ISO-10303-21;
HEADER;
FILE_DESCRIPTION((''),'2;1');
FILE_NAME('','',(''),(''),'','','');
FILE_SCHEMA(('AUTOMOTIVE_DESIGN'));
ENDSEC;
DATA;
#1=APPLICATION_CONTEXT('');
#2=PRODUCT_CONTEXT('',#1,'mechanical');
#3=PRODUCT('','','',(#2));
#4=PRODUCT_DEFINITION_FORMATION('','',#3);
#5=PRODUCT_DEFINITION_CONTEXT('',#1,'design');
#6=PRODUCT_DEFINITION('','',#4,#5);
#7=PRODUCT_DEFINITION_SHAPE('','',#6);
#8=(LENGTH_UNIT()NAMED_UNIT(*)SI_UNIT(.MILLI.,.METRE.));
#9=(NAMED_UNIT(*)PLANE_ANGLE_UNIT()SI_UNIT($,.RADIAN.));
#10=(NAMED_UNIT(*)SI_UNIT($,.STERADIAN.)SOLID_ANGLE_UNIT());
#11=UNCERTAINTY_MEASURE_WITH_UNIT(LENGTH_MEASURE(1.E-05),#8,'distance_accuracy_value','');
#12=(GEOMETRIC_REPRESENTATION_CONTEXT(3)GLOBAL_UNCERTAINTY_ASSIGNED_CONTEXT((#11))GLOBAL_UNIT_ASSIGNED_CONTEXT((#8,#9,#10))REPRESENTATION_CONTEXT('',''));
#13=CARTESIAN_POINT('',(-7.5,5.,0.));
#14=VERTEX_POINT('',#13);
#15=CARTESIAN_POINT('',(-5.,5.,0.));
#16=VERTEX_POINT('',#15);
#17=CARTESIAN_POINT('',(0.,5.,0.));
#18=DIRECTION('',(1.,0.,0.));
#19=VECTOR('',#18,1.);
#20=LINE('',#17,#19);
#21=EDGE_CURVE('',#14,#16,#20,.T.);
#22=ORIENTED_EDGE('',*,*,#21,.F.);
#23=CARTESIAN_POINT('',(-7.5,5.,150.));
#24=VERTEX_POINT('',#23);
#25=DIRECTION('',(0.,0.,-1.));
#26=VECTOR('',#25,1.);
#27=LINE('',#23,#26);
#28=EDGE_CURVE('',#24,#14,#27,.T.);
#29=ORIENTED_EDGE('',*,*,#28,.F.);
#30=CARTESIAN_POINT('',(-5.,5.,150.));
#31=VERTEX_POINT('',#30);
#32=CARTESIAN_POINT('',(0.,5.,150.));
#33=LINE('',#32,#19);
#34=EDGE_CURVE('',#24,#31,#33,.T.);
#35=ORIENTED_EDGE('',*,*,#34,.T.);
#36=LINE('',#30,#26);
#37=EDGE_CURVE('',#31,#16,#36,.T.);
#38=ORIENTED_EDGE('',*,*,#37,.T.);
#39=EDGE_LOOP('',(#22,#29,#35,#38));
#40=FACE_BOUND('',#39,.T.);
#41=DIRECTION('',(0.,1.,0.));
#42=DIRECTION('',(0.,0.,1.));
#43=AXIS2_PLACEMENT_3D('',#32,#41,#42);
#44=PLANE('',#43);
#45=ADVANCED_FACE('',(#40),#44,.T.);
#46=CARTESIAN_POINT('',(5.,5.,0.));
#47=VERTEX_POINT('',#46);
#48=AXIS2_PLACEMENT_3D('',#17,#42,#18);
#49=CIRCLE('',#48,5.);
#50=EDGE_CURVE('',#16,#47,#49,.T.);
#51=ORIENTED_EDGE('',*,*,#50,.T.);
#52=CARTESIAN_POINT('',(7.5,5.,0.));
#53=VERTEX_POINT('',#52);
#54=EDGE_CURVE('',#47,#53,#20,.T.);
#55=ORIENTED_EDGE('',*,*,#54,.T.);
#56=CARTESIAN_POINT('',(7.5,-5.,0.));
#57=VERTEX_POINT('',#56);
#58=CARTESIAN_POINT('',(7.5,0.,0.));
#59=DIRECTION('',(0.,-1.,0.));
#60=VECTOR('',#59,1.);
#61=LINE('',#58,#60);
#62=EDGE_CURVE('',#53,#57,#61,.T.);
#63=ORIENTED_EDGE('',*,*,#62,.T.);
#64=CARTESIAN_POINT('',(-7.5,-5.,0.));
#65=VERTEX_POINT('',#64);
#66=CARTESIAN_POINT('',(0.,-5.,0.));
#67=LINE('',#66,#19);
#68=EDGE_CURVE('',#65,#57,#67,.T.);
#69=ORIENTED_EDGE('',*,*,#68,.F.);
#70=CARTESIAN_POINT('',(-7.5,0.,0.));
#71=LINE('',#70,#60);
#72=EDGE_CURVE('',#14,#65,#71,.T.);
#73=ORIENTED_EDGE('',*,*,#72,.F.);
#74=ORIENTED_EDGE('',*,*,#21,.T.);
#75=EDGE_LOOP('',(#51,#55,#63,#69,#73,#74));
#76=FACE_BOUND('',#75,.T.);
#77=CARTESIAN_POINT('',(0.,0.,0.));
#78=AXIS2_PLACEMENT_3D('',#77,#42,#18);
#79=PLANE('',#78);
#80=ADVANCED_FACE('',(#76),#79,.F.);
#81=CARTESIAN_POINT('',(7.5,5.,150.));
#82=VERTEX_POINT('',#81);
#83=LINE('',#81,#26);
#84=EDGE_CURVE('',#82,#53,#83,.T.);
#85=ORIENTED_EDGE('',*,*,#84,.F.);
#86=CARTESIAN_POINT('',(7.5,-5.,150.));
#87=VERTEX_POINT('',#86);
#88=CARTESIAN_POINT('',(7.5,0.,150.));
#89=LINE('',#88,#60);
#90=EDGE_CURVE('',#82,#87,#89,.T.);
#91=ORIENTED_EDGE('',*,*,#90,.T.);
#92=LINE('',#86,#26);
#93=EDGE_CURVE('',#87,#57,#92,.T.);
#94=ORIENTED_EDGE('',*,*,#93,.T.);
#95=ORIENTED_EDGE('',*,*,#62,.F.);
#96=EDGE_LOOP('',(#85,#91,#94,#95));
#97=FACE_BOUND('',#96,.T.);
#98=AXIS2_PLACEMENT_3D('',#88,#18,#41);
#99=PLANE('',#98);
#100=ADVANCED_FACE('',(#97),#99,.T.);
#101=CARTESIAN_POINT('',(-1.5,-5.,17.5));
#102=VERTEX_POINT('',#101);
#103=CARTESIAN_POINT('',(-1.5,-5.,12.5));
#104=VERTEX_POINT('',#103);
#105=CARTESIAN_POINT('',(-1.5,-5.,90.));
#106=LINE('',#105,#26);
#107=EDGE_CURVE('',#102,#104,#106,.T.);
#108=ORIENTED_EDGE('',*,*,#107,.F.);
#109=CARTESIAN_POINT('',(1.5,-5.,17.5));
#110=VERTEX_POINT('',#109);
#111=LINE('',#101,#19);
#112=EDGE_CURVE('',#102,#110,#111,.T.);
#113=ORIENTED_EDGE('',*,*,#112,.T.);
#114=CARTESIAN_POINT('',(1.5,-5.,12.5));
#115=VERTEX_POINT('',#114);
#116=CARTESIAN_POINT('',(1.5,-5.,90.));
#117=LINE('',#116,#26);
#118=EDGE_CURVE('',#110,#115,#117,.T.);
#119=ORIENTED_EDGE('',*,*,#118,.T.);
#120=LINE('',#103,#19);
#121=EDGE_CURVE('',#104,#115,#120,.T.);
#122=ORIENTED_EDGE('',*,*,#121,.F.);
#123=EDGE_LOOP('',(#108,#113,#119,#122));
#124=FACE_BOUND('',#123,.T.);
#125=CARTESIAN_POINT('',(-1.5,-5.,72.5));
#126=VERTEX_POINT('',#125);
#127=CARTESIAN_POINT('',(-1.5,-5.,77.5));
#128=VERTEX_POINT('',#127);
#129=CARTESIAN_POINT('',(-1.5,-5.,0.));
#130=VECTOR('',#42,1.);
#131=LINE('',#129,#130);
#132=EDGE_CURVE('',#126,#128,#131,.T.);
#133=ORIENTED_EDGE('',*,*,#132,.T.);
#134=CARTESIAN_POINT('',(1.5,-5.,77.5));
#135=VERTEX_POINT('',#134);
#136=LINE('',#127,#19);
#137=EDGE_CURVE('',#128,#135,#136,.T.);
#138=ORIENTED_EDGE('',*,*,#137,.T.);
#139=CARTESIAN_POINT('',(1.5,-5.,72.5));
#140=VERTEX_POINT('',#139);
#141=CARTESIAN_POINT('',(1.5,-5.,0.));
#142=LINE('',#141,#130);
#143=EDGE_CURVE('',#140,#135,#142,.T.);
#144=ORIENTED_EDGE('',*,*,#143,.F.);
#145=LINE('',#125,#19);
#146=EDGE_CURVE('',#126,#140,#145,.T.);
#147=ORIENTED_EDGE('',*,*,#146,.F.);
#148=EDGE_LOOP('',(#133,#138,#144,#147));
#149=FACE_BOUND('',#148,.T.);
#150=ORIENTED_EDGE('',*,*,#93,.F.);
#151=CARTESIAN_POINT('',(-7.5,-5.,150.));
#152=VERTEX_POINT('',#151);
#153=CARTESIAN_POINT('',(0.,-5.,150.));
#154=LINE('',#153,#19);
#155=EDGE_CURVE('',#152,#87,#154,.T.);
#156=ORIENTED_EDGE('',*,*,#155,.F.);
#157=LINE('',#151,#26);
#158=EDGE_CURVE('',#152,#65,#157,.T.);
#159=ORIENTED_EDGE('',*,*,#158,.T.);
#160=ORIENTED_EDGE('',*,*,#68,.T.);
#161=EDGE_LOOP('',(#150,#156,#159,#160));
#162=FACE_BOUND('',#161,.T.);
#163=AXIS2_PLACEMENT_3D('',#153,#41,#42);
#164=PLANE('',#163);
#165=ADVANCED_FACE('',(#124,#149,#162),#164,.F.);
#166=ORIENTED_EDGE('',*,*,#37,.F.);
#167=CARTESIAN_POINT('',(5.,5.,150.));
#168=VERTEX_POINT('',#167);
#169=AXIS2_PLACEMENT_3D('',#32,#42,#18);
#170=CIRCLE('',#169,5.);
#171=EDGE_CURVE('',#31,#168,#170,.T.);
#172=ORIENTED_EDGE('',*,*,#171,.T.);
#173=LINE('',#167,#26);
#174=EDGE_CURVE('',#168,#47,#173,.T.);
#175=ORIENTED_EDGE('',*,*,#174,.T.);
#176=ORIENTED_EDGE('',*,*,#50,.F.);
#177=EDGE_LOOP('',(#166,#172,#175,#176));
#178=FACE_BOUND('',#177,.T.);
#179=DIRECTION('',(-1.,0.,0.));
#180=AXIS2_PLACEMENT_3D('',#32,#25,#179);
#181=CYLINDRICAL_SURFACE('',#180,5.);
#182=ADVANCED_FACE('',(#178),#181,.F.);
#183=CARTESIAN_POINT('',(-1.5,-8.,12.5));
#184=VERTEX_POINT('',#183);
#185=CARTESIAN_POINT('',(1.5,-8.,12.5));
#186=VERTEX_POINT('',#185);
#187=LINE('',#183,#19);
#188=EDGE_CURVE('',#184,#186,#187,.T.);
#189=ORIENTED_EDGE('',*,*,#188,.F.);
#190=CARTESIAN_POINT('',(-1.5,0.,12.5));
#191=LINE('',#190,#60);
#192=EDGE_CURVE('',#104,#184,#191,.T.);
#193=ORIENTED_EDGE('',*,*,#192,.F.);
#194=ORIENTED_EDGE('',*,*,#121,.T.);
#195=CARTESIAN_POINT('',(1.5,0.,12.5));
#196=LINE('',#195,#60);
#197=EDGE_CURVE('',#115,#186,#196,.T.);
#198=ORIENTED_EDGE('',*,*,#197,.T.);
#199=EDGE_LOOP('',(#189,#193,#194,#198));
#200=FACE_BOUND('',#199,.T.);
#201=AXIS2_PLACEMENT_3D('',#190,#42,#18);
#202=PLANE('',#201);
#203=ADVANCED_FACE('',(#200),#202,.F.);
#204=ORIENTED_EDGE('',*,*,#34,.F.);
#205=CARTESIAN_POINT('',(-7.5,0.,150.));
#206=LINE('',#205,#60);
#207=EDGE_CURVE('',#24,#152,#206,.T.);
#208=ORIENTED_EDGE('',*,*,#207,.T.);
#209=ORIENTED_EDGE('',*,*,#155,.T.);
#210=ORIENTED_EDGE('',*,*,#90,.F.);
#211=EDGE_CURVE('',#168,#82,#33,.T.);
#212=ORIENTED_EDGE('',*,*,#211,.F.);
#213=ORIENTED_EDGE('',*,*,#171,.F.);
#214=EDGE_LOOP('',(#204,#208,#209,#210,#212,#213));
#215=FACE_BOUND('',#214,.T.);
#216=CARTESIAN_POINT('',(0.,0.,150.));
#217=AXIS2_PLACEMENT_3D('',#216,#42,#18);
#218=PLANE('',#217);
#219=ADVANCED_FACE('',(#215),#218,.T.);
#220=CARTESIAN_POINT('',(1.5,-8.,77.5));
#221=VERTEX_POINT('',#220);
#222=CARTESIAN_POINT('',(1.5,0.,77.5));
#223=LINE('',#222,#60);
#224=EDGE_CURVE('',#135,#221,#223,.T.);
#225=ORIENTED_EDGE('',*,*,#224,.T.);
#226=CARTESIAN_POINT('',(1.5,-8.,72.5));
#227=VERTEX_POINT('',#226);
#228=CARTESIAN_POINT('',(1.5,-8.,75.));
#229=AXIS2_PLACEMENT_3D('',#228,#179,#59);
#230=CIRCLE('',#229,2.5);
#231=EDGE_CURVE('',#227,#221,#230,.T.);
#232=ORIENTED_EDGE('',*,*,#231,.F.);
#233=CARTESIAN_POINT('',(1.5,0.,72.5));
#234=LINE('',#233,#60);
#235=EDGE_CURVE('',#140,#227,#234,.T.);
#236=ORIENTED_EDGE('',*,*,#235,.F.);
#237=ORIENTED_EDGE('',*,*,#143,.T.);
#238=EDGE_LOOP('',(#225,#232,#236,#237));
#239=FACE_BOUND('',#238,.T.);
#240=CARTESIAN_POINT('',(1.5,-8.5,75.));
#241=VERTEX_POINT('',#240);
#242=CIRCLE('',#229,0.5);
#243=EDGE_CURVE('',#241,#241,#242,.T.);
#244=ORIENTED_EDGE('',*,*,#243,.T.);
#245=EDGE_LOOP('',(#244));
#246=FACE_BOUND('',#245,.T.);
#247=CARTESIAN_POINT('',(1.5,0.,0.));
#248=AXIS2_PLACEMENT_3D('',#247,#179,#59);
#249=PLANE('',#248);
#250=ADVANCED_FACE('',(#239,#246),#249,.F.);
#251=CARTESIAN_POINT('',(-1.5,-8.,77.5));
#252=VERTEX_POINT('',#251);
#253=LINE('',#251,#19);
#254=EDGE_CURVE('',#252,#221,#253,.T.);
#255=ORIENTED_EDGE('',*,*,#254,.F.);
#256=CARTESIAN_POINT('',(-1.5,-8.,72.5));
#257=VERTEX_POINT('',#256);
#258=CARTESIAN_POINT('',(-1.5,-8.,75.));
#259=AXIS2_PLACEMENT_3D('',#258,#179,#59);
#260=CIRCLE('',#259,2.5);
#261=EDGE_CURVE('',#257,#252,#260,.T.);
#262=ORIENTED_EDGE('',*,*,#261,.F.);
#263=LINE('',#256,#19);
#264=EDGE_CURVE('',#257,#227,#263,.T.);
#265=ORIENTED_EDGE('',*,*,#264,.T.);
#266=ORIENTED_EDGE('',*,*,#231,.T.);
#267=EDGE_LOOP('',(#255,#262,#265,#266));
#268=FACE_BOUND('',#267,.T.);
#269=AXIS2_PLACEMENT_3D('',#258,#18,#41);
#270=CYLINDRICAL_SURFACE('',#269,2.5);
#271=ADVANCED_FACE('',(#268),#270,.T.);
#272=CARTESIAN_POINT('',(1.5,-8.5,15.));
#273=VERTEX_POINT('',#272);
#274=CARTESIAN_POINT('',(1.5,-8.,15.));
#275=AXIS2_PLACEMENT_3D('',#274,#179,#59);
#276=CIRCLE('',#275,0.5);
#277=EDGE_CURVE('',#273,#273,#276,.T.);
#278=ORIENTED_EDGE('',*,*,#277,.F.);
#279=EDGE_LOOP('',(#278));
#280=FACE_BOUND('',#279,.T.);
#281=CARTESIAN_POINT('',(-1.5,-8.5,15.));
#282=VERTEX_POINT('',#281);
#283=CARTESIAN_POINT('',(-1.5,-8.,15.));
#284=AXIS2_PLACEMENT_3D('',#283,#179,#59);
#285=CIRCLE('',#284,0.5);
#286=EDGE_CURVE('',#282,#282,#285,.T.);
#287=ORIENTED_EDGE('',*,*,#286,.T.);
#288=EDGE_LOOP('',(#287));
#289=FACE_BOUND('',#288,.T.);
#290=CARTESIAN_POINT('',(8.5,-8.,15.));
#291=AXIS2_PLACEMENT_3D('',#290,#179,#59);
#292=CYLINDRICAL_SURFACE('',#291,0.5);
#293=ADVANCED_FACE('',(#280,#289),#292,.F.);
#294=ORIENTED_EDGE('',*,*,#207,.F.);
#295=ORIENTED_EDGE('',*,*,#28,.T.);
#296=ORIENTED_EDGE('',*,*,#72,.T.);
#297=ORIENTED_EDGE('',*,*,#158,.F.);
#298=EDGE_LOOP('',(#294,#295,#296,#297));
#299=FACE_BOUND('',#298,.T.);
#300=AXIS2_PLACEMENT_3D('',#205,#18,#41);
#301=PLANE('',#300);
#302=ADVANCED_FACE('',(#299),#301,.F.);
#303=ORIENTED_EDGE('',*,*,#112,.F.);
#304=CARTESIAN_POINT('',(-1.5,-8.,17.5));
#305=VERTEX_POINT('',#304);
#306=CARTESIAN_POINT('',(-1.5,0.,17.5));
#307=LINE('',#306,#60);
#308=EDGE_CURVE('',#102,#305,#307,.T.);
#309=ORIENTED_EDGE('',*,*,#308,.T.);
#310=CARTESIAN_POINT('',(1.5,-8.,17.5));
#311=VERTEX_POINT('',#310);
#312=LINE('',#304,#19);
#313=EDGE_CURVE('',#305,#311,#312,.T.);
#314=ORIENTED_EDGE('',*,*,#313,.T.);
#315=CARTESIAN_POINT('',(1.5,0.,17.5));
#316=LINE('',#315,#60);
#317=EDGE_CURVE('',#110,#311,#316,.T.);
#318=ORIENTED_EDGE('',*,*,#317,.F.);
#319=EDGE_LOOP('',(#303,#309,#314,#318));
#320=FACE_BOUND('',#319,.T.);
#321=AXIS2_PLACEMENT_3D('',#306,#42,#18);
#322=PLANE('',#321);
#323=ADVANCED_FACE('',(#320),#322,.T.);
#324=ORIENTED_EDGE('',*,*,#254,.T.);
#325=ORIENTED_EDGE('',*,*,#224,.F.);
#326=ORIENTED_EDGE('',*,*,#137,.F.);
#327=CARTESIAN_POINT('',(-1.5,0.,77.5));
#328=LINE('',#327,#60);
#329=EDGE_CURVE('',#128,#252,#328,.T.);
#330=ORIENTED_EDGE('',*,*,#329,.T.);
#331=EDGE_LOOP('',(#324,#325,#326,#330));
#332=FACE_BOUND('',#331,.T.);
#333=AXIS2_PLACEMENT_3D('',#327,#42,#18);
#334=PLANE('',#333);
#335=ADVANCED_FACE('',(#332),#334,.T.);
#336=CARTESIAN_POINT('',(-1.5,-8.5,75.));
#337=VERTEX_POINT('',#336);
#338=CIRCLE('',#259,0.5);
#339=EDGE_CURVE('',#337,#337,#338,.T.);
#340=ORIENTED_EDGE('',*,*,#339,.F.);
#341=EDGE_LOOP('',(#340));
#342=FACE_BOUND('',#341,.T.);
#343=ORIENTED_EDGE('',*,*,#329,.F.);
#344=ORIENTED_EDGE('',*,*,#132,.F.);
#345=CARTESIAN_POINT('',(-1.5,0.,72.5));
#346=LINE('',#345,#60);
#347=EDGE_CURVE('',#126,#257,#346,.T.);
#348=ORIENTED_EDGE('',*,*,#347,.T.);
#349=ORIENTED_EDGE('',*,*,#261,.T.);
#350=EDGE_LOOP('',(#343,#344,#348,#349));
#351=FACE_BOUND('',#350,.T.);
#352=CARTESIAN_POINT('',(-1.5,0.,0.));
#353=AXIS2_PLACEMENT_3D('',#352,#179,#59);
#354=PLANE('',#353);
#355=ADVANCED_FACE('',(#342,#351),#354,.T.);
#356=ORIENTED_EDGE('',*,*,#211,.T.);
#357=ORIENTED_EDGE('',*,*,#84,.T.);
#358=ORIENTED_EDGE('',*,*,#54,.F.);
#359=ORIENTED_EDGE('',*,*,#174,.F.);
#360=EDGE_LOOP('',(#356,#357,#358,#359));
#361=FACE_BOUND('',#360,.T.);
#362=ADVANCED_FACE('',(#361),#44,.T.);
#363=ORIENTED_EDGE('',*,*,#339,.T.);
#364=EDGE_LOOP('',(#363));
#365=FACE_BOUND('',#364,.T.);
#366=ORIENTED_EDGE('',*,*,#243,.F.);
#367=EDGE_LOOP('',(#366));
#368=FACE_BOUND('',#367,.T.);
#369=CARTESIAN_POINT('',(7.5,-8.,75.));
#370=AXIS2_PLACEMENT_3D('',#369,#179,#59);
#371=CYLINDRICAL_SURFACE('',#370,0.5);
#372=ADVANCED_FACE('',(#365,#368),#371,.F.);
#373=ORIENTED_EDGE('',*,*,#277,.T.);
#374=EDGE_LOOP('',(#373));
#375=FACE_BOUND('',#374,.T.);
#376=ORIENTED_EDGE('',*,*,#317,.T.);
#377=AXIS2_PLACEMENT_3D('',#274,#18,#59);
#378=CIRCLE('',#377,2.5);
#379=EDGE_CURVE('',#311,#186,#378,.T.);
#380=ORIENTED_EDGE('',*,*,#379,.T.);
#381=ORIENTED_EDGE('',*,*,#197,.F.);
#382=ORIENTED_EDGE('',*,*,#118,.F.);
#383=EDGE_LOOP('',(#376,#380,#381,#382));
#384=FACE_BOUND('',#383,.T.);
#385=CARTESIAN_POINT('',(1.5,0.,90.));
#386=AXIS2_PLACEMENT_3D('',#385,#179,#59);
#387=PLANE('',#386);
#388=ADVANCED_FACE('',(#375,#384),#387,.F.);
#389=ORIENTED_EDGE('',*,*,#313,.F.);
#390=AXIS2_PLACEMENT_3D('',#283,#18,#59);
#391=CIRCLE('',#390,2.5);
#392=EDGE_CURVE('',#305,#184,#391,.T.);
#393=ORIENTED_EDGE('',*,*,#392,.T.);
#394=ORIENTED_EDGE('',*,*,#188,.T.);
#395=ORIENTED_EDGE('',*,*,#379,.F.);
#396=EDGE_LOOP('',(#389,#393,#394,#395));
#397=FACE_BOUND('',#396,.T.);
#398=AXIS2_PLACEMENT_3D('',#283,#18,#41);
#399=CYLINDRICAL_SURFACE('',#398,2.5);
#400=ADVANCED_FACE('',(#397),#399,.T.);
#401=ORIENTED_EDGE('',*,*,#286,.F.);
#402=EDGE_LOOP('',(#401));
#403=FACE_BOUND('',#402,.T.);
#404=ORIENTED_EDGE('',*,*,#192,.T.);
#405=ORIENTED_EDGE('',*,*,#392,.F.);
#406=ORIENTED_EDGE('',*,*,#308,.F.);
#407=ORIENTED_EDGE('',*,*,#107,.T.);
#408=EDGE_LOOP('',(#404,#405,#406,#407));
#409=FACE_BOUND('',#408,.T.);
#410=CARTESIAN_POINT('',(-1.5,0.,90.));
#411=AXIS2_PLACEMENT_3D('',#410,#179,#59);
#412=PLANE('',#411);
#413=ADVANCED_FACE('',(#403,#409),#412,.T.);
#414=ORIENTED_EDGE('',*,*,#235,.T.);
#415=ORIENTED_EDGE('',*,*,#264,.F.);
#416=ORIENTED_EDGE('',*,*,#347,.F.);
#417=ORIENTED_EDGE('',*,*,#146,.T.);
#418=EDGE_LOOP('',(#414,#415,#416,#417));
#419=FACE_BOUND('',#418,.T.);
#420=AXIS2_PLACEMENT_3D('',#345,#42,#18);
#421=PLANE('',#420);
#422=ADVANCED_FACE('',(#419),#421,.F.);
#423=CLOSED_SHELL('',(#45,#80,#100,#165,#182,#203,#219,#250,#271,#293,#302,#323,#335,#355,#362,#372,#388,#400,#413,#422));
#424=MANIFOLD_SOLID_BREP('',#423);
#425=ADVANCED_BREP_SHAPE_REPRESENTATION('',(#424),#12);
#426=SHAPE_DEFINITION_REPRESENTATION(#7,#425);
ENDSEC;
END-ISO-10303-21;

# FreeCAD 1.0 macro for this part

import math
import FreeCAD as App
import Part
import Sketcher

V = App.Vector
Q = App.Units.Quantity

doc = App.newDocument("Part")
body = doc.addObject("PartDesign::Body", "Body")

# Sketch on XY plane
sketch1 = body.newObject("Sketcher::SketchObject", "Sketch")
sketch1.AttachmentSupport = (doc.getObject("XY_Plane"), [""])
sketch1.MapMode = "FlatFace"
sketch1.addGeometry(Part.LineSegment(V(7.5, 5, 0), V(5, 5, 0)), False)
sketch1.addGeometry(Part.ArcOfCircle(Part.Circle(V(0, 5, 0), V(0, 0, 1), 5), math.radians(180), math.radians(360)), False)
sketch1.addGeometry(Part.LineSegment(V(-5, 5, 0), V(-7.5, 5, 0)), False)
sketch1.addGeometry(Part.LineSegment(V(-7.5, 5, 0), V(-7.5, -5, 0)), False)
sketch1.addGeometry(Part.LineSegment(V(-7.5, -5, 0), V(7.5, -5, 0)), False)
sketch1.addGeometry(Part.LineSegment(V(7.5, -5, 0), V(7.5, 5, 0)), False)
sketch1.addConstraint(Sketcher.Constraint("Coincident", 0, 2, 1, 2))
sketch1.addConstraint(Sketcher.Constraint("Coincident", 1, 1, 2, 1))
sketch1.addConstraint(Sketcher.Constraint("Coincident", 2, 2, 3, 1))
sketch1.addConstraint(Sketcher.Constraint("Coincident", 3, 2, 4, 1))
sketch1.addConstraint(Sketcher.Constraint("Coincident", 4, 2, 5, 1))
sketch1.addConstraint(Sketcher.Constraint("Coincident", 5, 2, 0, 1))
sketch1.addConstraint(Sketcher.Constraint("Horizontal", 0))
sketch1.addConstraint(Sketcher.Constraint("Horizontal", 2))
sketch1.addConstraint(Sketcher.Constraint("Vertical", 3))
sketch1.addConstraint(Sketcher.Constraint("Horizontal", 4))
sketch1.addConstraint(Sketcher.Constraint("Vertical", 5))
sketch1.addConstraint(Sketcher.Constraint("Symmetric", 2, 2, 4, 2, -1, 1))
sketch1.addConstraint(Sketcher.Constraint("Symmetric", 0, 2, 1, 1, -2))
sketch1.addConstraint(Sketcher.Constraint("Horizontal", 1, 3, 0, 2))
sketch1.addConstraint(Sketcher.Constraint("Radius", 1, Q("5 mm")))
sketch1.addConstraint(Sketcher.Constraint("DistanceX", 4, 1, 4, 2, Q("15 mm")))
sketch1.addConstraint(Sketcher.Constraint("DistanceY", 3, 2, 3, 1, Q("10 mm")))
pad1 = body.newObject("PartDesign::Pad", "Pad")
pad1.Profile = sketch1
pad1.Length = 150

# Sketch on YZ plane
sketch2 = body.newObject("Sketcher::SketchObject", "Sketch001")
sketch2.AttachmentSupport = (doc.getObject("YZ_Plane"), [""])
sketch2.MapMode = "FlatFace"
sketch2.addGeometry(Part.ArcOfCircle(Part.Circle(V(-8, 75, 0), V(0, 0, 1), 2.5), math.radians(90), math.radians(270)), False)
sketch2.addGeometry(Part.LineSegment(V(-8, 77.5, 0), V(-5, 77.5, 0)), False)
sketch2.addGeometry(Part.LineSegment(V(-5, 77.5, 0), V(-5, 72.5, 0)), False)
sketch2.addGeometry(Part.LineSegment(V(-5, 72.5, 0), V(-8, 72.5, 0)), False)
sketch2.addConstraint(Sketcher.Constraint("Tangent", 0, 1, 1, 1))
sketch2.addConstraint(Sketcher.Constraint("Coincident", 1, 2, 2, 1))
sketch2.addConstraint(Sketcher.Constraint("Coincident", 2, 2, 3, 1))
sketch2.addConstraint(Sketcher.Constraint("Tangent", 3, 2, 0, 2))
sketch2.addConstraint(Sketcher.Constraint("Horizontal", 1))
sketch2.addConstraint(Sketcher.Constraint("Vertical", 2))
sketch2.addConstraint(Sketcher.Constraint("Horizontal", 3))
sketch2.addConstraint(Sketcher.Constraint("Radius", 0, Q("2.5 mm")))
sketch2.addConstraint(Sketcher.Constraint("DistanceX", 1, 1, 1, 2, Q("3 mm")))
sketch2.addConstraint(Sketcher.Constraint("DistanceX", 0, 3, -1, 1, Q("8 mm")))
sketch2.addConstraint(Sketcher.Constraint("DistanceY", -1, 1, 0, 3, Q("75 mm")))
pad2 = body.newObject("PartDesign::Pad", "Pad001")
pad2.Profile = sketch2
pad2.Length = 3
pad2.Midplane = True
doc.recompute()

datumplane = body.newObject("PartDesign::Plane", "DatumPlane")
datumplane.AttachmentSupport = (doc.getObject("XY_Plane"), [""])
datumplane.MapMode = "FlatFace"
datumplane.AttachmentOffset = App.Placement(V(0, 0, 45), App.Rotation())
mirrored = body.newObject("PartDesign::Mirrored", "Mirrored")
mirrored.Originals = [pad2]
mirrored.MirrorPlane = (datumplane, [""])
body.Tip = mirrored

# Sketch on YZ plane
sketch3 = body.newObject("Sketcher::SketchObject", "Sketch002")
sketch3.AttachmentSupport = (doc.getObject("YZ_Plane"), [""])
sketch3.MapMode = "FlatFace"
sketch3.addGeometry(Part.Circle(V(-8, 75, 0), V(0, 0, 1), 0.5), False)
sketch3.addConstraint(Sketcher.Constraint("Diameter", 0, Q("1 mm")))
sketch3.addConstraint(Sketcher.Constraint("DistanceX", 0, 3, -1, 1, Q("8 mm")))
sketch3.addConstraint(Sketcher.Constraint("DistanceY", -1, 1, 0, 3, Q("75 mm")))
pocket1 = body.newObject("PartDesign::Pocket", "Pocket")
pocket1.Profile = sketch3
pocket1.Type = "ThroughAll"
pocket1.Midplane = True

# Sketch on YZ plane
sketch4 = body.newObject("Sketcher::SketchObject", "Sketch003")
sketch4.AttachmentSupport = (doc.getObject("YZ_Plane"), [""])
sketch4.MapMode = "FlatFace"
sketch4.AttachmentOffset = App.Placement(V(0, 0, -1.5), App.Rotation())
sketch4.addGeometry(Part.Circle(V(-8, 15, 0), V(0, 0, 1), 0.5), False)
sketch4.addConstraint(Sketcher.Constraint("Diameter", 0, Q("1 mm")))
sketch4.addConstraint(Sketcher.Constraint("DistanceX", 0, 3, -1, 1, Q("8 mm")))
sketch4.addConstraint(Sketcher.Constraint("DistanceY", -1, 1, 0, 3, Q("15 mm")))
pocket2 = body.newObject("PartDesign::Pocket", "Pocket001")
pocket2.Profile = sketch4
pocket2.Length = 10
pocket2.Reversed = True

doc.recompute()
